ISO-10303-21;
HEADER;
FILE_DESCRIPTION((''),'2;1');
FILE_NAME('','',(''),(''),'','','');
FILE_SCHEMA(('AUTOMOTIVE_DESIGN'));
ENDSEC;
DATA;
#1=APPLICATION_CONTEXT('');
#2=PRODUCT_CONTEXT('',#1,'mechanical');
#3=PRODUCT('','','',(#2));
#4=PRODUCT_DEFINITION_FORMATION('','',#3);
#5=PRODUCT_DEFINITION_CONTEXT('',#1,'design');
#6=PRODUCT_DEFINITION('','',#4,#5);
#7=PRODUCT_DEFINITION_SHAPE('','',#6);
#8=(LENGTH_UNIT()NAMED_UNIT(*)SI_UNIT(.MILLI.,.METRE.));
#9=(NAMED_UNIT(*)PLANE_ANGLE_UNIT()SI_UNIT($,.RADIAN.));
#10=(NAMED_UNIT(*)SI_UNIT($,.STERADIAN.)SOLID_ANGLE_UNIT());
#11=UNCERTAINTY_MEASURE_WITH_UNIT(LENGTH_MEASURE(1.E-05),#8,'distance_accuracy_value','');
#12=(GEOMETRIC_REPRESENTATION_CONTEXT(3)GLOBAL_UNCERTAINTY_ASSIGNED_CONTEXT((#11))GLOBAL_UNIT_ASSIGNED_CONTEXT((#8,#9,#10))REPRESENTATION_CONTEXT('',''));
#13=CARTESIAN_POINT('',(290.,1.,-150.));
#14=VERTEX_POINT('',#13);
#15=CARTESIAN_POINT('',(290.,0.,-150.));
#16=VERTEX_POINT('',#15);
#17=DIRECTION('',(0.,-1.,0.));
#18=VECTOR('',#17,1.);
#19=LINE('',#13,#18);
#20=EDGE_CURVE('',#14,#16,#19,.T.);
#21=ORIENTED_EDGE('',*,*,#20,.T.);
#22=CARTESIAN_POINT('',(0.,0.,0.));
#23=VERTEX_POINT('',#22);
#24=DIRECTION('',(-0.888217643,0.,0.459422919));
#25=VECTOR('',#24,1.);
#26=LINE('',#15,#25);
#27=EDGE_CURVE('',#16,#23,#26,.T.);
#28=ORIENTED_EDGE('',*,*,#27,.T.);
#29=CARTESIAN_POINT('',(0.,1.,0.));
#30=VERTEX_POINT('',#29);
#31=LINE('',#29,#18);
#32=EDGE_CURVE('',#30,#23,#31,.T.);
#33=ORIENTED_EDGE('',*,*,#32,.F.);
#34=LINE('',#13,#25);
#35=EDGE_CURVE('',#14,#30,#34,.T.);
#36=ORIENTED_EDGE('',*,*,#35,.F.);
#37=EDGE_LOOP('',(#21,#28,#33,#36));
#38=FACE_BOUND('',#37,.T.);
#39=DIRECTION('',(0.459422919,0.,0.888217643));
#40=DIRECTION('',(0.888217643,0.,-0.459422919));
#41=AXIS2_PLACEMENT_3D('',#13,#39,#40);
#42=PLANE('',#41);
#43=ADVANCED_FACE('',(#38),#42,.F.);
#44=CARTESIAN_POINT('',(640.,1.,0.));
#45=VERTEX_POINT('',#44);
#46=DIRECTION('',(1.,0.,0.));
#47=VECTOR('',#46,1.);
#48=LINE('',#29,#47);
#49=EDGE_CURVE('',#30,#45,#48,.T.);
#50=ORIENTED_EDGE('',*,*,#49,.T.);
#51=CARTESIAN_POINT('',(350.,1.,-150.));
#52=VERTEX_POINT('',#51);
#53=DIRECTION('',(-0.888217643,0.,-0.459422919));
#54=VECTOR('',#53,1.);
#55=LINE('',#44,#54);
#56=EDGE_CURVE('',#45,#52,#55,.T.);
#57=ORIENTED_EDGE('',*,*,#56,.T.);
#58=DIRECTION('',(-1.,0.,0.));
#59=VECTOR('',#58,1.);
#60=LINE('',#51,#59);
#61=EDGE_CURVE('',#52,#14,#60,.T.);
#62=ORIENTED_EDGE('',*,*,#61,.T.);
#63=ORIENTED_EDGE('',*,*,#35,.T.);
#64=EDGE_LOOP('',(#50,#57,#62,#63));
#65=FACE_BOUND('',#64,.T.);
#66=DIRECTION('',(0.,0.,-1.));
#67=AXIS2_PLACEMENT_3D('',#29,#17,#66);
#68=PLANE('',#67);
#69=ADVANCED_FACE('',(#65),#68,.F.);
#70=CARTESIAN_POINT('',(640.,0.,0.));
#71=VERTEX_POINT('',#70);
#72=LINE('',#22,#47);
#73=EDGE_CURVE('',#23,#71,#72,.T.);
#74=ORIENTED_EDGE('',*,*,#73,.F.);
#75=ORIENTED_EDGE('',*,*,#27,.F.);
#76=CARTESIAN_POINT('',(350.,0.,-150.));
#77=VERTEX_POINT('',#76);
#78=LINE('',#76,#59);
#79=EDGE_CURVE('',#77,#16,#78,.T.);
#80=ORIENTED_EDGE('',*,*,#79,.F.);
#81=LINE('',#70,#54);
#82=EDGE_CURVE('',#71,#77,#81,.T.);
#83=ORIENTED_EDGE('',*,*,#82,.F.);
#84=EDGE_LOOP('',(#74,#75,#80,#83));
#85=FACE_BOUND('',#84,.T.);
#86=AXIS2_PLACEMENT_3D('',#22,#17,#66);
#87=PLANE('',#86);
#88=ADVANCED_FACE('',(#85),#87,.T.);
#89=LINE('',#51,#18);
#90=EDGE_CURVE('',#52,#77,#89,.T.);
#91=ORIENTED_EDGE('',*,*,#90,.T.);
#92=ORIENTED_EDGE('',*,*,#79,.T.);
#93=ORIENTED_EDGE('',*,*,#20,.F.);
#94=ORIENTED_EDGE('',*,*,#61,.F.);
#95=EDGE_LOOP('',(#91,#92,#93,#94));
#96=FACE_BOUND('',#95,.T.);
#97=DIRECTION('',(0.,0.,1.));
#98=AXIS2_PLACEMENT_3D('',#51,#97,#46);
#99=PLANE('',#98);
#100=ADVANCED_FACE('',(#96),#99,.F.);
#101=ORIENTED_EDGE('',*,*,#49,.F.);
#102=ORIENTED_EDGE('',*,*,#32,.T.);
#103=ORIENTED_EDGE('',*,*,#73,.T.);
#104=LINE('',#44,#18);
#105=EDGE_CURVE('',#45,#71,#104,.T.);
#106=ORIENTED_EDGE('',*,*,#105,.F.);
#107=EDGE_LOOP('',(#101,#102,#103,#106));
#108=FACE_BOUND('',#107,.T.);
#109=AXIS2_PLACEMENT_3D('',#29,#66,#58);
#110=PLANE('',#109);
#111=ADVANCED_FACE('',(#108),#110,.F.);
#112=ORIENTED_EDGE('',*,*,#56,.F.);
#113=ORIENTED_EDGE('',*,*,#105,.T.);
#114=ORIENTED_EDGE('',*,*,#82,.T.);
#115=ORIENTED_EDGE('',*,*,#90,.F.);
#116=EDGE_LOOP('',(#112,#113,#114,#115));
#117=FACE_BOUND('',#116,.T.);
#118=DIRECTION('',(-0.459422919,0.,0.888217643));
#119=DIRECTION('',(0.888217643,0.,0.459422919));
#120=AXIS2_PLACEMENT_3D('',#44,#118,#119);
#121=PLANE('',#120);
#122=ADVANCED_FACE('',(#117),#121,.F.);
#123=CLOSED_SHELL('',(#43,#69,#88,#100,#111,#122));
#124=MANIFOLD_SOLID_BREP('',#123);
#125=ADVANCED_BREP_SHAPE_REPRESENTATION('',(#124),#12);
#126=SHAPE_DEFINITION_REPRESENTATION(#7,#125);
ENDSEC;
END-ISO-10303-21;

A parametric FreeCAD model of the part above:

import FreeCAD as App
import Part
import Sketcher
Q = App.Units.Quantity

doc = App.newDocument("Part")
body = doc.addObject("PartDesign::Body", "Body")

# Sketch on XZ plane
sketch1 = body.newObject("Sketcher::SketchObject", "Sketch")
sketch1.AttachmentSupport = (doc.getObject("XZ_Plane"), [""])
sketch1.MapMode = "FlatFace"
sketch1.addGeometry(Part.LineSegment(App.Vector(0, 0, 0), App.Vector(640, 0, 0)), False)
sketch1.addGeometry(Part.LineSegment(App.Vector(640, 0, 0), App.Vector(350, -150, 0)), False)
sketch1.addGeometry(Part.LineSegment(App.Vector(350, -150, 0), App.Vector(290, -150, 0)), False)
sketch1.addGeometry(Part.LineSegment(App.Vector(290, -150, 0), App.Vector(0, 0, 0)), False)
sketch1.addConstraint(Sketcher.Constraint("Coincident", 0, 2, 1, 1))
sketch1.addConstraint(Sketcher.Constraint("Coincident", 1, 2, 2, 1))
sketch1.addConstraint(Sketcher.Constraint("Coincident", 2, 2, 3, 1))
sketch1.addConstraint(Sketcher.Constraint("Coincident", 3, 2, 0, 1))
sketch1.addConstraint(Sketcher.Constraint("Horizontal", 0))
sketch1.addConstraint(Sketcher.Constraint("Horizontal", 2))
sketch1.addConstraint(Sketcher.Constraint("Coincident", 3, 2, -1, 1))
sketch1.addConstraint(Sketcher.Constraint("Equal", 1, 3))
sketch1.addConstraint(Sketcher.Constraint("DistanceX", 0, 1, 0, 2, Q("640 mm")))
sketch1.addConstraint(Sketcher.Constraint("DistanceX", 2, 2, 2, 1, Q("60 mm")))
sketch1.addConstraint(Sketcher.Constraint("DistanceY", 1, 2, -1, 1, Q("150 mm")))
pad1 = body.newObject("PartDesign::Pad", "Pad")
pad1.Profile = sketch1
pad1.Length = 1
pad1.Reversed = True

doc.recompute()
